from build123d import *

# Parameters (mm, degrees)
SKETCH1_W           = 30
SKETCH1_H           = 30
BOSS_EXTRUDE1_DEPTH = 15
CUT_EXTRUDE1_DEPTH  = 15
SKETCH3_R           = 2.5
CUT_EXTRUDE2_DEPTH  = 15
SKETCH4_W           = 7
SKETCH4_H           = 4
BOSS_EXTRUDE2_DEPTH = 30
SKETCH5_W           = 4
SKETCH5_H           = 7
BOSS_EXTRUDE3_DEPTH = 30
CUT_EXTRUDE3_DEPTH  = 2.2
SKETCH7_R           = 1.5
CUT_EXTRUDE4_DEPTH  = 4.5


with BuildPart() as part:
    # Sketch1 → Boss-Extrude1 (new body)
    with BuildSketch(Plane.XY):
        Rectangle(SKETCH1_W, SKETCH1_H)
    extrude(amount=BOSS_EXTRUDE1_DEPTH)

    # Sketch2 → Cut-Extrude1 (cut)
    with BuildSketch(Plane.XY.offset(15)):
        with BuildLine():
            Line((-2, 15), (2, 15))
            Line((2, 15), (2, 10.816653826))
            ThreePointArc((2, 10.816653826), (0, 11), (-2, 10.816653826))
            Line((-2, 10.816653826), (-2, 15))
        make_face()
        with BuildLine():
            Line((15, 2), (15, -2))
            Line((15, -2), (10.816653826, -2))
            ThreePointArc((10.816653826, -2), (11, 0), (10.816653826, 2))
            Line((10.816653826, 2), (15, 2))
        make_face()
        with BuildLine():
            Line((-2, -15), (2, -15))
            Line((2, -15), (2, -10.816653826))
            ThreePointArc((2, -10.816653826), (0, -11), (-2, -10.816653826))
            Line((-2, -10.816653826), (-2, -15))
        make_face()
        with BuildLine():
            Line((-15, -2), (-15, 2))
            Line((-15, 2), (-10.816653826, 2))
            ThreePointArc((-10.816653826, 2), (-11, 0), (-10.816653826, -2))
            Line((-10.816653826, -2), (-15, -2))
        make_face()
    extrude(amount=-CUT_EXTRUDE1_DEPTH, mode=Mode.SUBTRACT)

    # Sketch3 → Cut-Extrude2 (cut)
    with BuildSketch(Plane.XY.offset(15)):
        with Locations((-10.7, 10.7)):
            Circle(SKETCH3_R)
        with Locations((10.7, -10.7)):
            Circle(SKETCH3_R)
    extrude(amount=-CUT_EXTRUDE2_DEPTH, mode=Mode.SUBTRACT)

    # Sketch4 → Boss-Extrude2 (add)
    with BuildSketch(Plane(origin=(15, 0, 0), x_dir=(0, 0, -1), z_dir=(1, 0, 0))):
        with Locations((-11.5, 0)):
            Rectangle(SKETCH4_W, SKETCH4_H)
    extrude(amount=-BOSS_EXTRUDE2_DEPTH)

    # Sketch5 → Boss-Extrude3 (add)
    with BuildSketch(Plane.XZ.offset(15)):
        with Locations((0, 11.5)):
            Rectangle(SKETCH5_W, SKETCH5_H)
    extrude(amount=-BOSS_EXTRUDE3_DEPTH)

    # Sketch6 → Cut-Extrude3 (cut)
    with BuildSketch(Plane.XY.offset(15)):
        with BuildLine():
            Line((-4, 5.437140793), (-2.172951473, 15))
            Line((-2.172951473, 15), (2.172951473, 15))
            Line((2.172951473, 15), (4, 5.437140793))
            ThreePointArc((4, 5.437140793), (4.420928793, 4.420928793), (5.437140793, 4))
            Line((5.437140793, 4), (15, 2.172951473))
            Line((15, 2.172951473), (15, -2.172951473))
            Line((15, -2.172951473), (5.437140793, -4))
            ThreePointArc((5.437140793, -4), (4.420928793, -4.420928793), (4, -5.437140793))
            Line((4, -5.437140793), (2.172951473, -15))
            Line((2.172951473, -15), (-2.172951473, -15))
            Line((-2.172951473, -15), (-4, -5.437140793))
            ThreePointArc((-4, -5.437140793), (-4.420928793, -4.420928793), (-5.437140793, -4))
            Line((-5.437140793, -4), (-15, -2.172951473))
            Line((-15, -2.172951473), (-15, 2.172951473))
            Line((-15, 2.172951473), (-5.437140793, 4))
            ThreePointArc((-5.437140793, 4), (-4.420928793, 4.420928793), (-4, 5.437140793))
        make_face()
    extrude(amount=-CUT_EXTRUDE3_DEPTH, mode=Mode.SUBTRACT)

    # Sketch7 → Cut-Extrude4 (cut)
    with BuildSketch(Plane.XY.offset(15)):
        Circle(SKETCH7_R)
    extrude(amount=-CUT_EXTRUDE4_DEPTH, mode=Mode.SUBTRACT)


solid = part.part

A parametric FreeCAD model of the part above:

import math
import FreeCAD as App
import Part
import Sketcher
Q = App.Units.Quantity


def add_polygon(sketch, points):
    """Adds a closed chain of lines whose ends are joined by coincident constraints."""
    first, n = sketch.GeometryCount, len(points)
    for a, b in zip(points, points[1:] + points[:1]):
        sketch.addGeometry(Part.LineSegment(App.Vector(*a, 0), App.Vector(*b, 0)), False)
    for i in range(n):
        sketch.addConstraint(Sketcher.Constraint("Coincident", first + i, 2, first + (i + 1) % n, 1))

doc = App.newDocument("Part")
params = doc.addObject("Spreadsheet::Sheet", "Params")
for row, (alias, value) in enumerate([
    ("sketch1_width", "30 mm"),
    ("pad1_length", "15 mm"),
    ("sketch2_radius", "11 mm"),
    ("sketch2_width", "4 mm"),
    ("pocket1_length", "15 mm"),
    ("sketch3_diameter", "5 mm"),
    ("pocket2_length", "15 mm"),
    ("sketch4_width", "4 mm"),
    ("sketch4_height", "7 mm"),
    ("pad2_length", "30 mm"),
    ("sketch5_width", "4 mm"),
    ("sketch5_height", "7 mm"),
    ("pad3_length", "30 mm"),
    ("pocket3_length", "2.2 mm"),
    ("sketch7_diameter", "3 mm"),
    ("pocket4_length", "4.5 mm"),
], start=1):
    params.set(f"A{row}", alias)
    params.set(f"B{row}", "=" + value)
    params.setAlias(f"B{row}", alias)

body = doc.addObject("PartDesign::Body", "Body")

sketch1 = body.newObject("Sketcher::SketchObject", "Sketch")
sketch1.AttachmentSupport = (doc.getObject("XY_Plane"), [""])
sketch1.MapMode = "FlatFace"
add_polygon(sketch1, [(-15, 15), (-15, -15), (15, -15), (15, 15)])
sketch1.addConstraint(Sketcher.Constraint("Vertical", 0))
sketch1.addConstraint(Sketcher.Constraint("Horizontal", 1))
sketch1.addConstraint(Sketcher.Constraint("Vertical", 2))
sketch1.addConstraint(Sketcher.Constraint("Horizontal", 3))
sketch1.addConstraint(Sketcher.Constraint("Symmetric", 0, 2, 2, 2, -1, 1))
sketch1.addConstraint(Sketcher.Constraint("Equal", 3, 0))
sketch1.addConstraint(Sketcher.Constraint("DistanceX", 1, 1, 1, 2, Q("30 mm")))
sketch1.setExpression("Constraints[10]", "Params.sketch1_width")
pad1 = body.newObject("PartDesign::Pad", "Pad")
pad1.Profile = sketch1
pad1.setExpression("Length", "Params.pad1_length")

sketch2 = body.newObject("Sketcher::SketchObject", "Sketch001")
sketch2.AttachmentSupport = (doc.getObject("XY_Plane"), [""])
sketch2.MapMode = "FlatFace"
sketch2.AttachmentOffset = App.Placement(App.Vector(0, 0, 15), App.Rotation())
sketch2.addGeometry(Part.LineSegment(App.Vector(2, 15, 0), App.Vector(-2, 15, 0)), False)
sketch2.addGeometry(Part.LineSegment(App.Vector(-2, 15, 0), App.Vector(-2, 10.8, 0)), False)
sketch2.addGeometry(Part.ArcOfCircle(Part.Circle(App.Vector(0, 0, 0), App.Vector(0, 0, 1), 11), math.radians(80), math.radians(100)), False)
sketch2.addGeometry(Part.LineSegment(App.Vector(2, 10.8, 0), App.Vector(2, 15, 0)), False)
sketch2.addGeometry(Part.LineSegment(App.Vector(15, -2, 0), App.Vector(15, 2, 0)), False)
sketch2.addGeometry(Part.LineSegment(App.Vector(15, 2, 0), App.Vector(10.8, 2, 0)), False)
sketch2.addGeometry(Part.ArcOfCircle(Part.Circle(App.Vector(0, 0, 0), App.Vector(0, 0, 1), 11), math.radians(-10), math.radians(10)), False)
sketch2.addGeometry(Part.LineSegment(App.Vector(10.8, -2, 0), App.Vector(15, -2, 0)), False)
sketch2.addGeometry(Part.LineSegment(App.Vector(-2, -15, 0), App.Vector(2, -15, 0)), False)
sketch2.addGeometry(Part.LineSegment(App.Vector(2, -15, 0), App.Vector(2, -10.8, 0)), False)
sketch2.addGeometry(Part.ArcOfCircle(Part.Circle(App.Vector(0, 0, 0), App.Vector(0, 0, 1), 11), math.radians(-100), math.radians(-80)), False)
sketch2.addGeometry(Part.LineSegment(App.Vector(-2, -10.8, 0), App.Vector(-2, -15, 0)), False)
sketch2.addGeometry(Part.LineSegment(App.Vector(-15, 2, 0), App.Vector(-15, -2, 0)), False)
sketch2.addGeometry(Part.LineSegment(App.Vector(-15, -2, 0), App.Vector(-10.8, -2, 0)), False)
sketch2.addGeometry(Part.ArcOfCircle(Part.Circle(App.Vector(0, 0, 0), App.Vector(0, 0, 1), 11), math.radians(170), math.radians(190)), False)
sketch2.addGeometry(Part.LineSegment(App.Vector(-10.8, 2, 0), App.Vector(-15, 2, 0)), False)
sketch2.addConstraint(Sketcher.Constraint("Coincident", 0, 2, 1, 1))
sketch2.addConstraint(Sketcher.Constraint("Coincident", 1, 2, 2, 2))
sketch2.addConstraint(Sketcher.Constraint("Coincident", 2, 1, 3, 1))
sketch2.addConstraint(Sketcher.Constraint("Coincident", 3, 2, 0, 1))
sketch2.addConstraint(Sketcher.Constraint("Coincident", 4, 2, 5, 1))
sketch2.addConstraint(Sketcher.Constraint("Coincident", 5, 2, 6, 2))
sketch2.addConstraint(Sketcher.Constraint("Coincident", 6, 1, 7, 1))
sketch2.addConstraint(Sketcher.Constraint("Coincident", 7, 2, 4, 1))
sketch2.addConstraint(Sketcher.Constraint("Coincident", 8, 2, 9, 1))
sketch2.addConstraint(Sketcher.Constraint("Coincident", 9, 2, 10, 2))
sketch2.addConstraint(Sketcher.Constraint("Coincident", 10, 1, 11, 1))
sketch2.addConstraint(Sketcher.Constraint("Coincident", 11, 2, 8, 1))
sketch2.addConstraint(Sketcher.Constraint("Coincident", 12, 2, 13, 1))
sketch2.addConstraint(Sketcher.Constraint("Coincident", 13, 2, 14, 2))
sketch2.addConstraint(Sketcher.Constraint("Coincident", 14, 1, 15, 1))
sketch2.addConstraint(Sketcher.Constraint("Coincident", 15, 2, 12, 1))
sketch2.addConstraint(Sketcher.Constraint("Horizontal", 0))
sketch2.addConstraint(Sketcher.Constraint("Vertical", 1))
sketch2.addConstraint(Sketcher.Constraint("Vertical", 3))
sketch2.addConstraint(Sketcher.Constraint("Vertical", 4))
sketch2.addConstraint(Sketcher.Constraint("Horizontal", 5))
sketch2.addConstraint(Sketcher.Constraint("Horizontal", 7))
sketch2.addConstraint(Sketcher.Constraint("Horizontal", 8))
sketch2.addConstraint(Sketcher.Constraint("Vertical", 9))
sketch2.addConstraint(Sketcher.Constraint("Vertical", 11))
sketch2.addConstraint(Sketcher.Constraint("Vertical", 12))
sketch2.addConstraint(Sketcher.Constraint("Horizontal", 13))
sketch2.addConstraint(Sketcher.Constraint("Horizontal", 15))
sketch2.addConstraint(Sketcher.Constraint("Coincident", 2, 3, -1, 1))
sketch2.addConstraint(Sketcher.Constraint("Coincident", 6, 3, -1, 1))
sketch2.addConstraint(Sketcher.Constraint("Coincident", 10, 3, -1, 1))
sketch2.addConstraint(Sketcher.Constraint("Coincident", 14, 3, -1, 1))
sketch2.addConstraint(Sketcher.Constraint("Equal", 2, 6))
sketch2.addConstraint(Sketcher.Constraint("Equal", 6, 10))
sketch2.addConstraint(Sketcher.Constraint("Equal", 10, 14))
sketch2.addConstraint(Sketcher.Constraint("Symmetric", 0, 2, 8, 2, -1, 1))
sketch2.addConstraint(Sketcher.Constraint("Symmetric", 4, 2, 12, 2, -1, 1))
sketch2.addConstraint(Sketcher.Constraint("Horizontal", 1, 2, 2, 1))
sketch2.addConstraint(Sketcher.Constraint("Horizontal", 9, 2, 10, 1))
sketch2.addConstraint(Sketcher.Constraint("Horizontal", 7, 2, 12, 2))
sketch2.addConstraint(Sketcher.Constraint("Horizontal", 5, 2, 14, 1))
sketch2.addConstraint(Sketcher.Constraint("Equal", 15, 1))
sketch2.addConstraint(Sketcher.Constraint("Equal", 8, 4))
sketch2.addConstraint(Sketcher.Constraint("Radius", 2, Q("11 mm")))
sketch2.addConstraint(Sketcher.Constraint("DistanceX", 0, 2, 0, 1, Q("4 mm")))
sketch2.addConstraint(Sketcher.Constraint("DistanceY", -1, 1, 0, 2, Q("15 mm")))
sketch2.setExpression("Constraints[43]", "Params.sketch2_radius")
sketch2.setExpression("Constraints[44]", "Params.sketch2_width")
pocket1 = body.newObject("PartDesign::Pocket", "Pocket")
pocket1.Profile = sketch2
pocket1.setExpression("Length", "Params.pocket1_length")

sketch3 = body.newObject("Sketcher::SketchObject", "Sketch002")
sketch3.AttachmentSupport = (doc.getObject("XY_Plane"), [""])
sketch3.MapMode = "FlatFace"
sketch3.AttachmentOffset = App.Placement(App.Vector(0, 0, 15), App.Rotation())
sketch3.addGeometry(Part.Circle(App.Vector(-10.7, 10.7, 0), App.Vector(0, 0, 1), 2.5), False)
sketch3.addGeometry(Part.Circle(App.Vector(10.7, -10.7, 0), App.Vector(0, 0, 1), 2.5), False)
sketch3.addConstraint(Sketcher.Constraint("Equal", 0, 1))
sketch3.addConstraint(Sketcher.Constraint("Symmetric", 0, 3, 1, 3, -1, 1))
sketch3.addConstraint(Sketcher.Constraint("Diameter", 0, Q("5 mm")))
sketch3.addConstraint(Sketcher.Constraint("DistanceX", 0, 3, -1, 1, Q("10.7 mm")))
sketch3.addConstraint(Sketcher.Constraint("DistanceY", -1, 1, 0, 3, Q("10.7 mm")))
sketch3.setExpression("Constraints[2]", "Params.sketch3_diameter")
pocket2 = body.newObject("PartDesign::Pocket", "Pocket001")
pocket2.Profile = sketch3
pocket2.setExpression("Length", "Params.pocket2_length")

sketch4 = body.newObject("Sketcher::SketchObject", "Sketch003")
sketch4.AttachmentSupport = (doc.getObject("YZ_Plane"), [""])
sketch4.MapMode = "FlatFace"
sketch4.AttachmentOffset = App.Placement(App.Vector(0, 0, 15), App.Rotation())
add_polygon(sketch4, [(2, 15), (-2, 15), (-2, 8), (2, 8)])
sketch4.addConstraint(Sketcher.Constraint("Horizontal", 0))
sketch4.addConstraint(Sketcher.Constraint("Vertical", 1))
sketch4.addConstraint(Sketcher.Constraint("Horizontal", 2))
sketch4.addConstraint(Sketcher.Constraint("Vertical", 3))
sketch4.addConstraint(Sketcher.Constraint("DistanceX", 0, 2, 0, 1, Q("4 mm")))
sketch4.addConstraint(Sketcher.Constraint("DistanceY", 1, 2, 1, 1, Q("7 mm")))
sketch4.addConstraint(Sketcher.Constraint("DistanceX", 0, 2, -1, 1, Q("2 mm")))
sketch4.addConstraint(Sketcher.Constraint("DistanceY", -1, 1, 0, 2, Q("15 mm")))
sketch4.setExpression("Constraints[8]", "Params.sketch4_width")
sketch4.setExpression("Constraints[9]", "Params.sketch4_height")
pad2 = body.newObject("PartDesign::Pad", "Pad001")
pad2.Profile = sketch4
pad2.setExpression("Length", "Params.pad2_length")
pad2.Reversed = True

sketch5 = body.newObject("Sketcher::SketchObject", "Sketch004")
sketch5.AttachmentSupport = (doc.getObject("XZ_Plane"), [""])
sketch5.MapMode = "FlatFace"
sketch5.AttachmentOffset = App.Placement(App.Vector(0, 0, 15), App.Rotation())
add_polygon(sketch5, [(-2, 15), (-2, 8), (2, 8), (2, 15)])
sketch5.addConstraint(Sketcher.Constraint("Vertical", 0))
sketch5.addConstraint(Sketcher.Constraint("Horizontal", 1))
sketch5.addConstraint(Sketcher.Constraint("Vertical", 2))
sketch5.addConstraint(Sketcher.Constraint("Horizontal", 3))
sketch5.addConstraint(Sketcher.Constraint("DistanceX", 1, 1, 1, 2, Q("4 mm")))
sketch5.addConstraint(Sketcher.Constraint("DistanceY", 0, 2, 0, 1, Q("7 mm")))
sketch5.addConstraint(Sketcher.Constraint("DistanceX", 0, 2, -1, 1, Q("2 mm")))
sketch5.addConstraint(Sketcher.Constraint("DistanceY", -1, 1, 0, 2, Q("8 mm")))
sketch5.setExpression("Constraints[8]", "Params.sketch5_width")
sketch5.setExpression("Constraints[9]", "Params.sketch5_height")
pad3 = body.newObject("PartDesign::Pad", "Pad002")
pad3.Profile = sketch5
pad3.setExpression("Length", "Params.pad3_length")
pad3.Reversed = True

sketch6 = body.newObject("Sketcher::SketchObject", "Sketch005")
sketch6.AttachmentSupport = (doc.getObject("XY_Plane"), [""])
sketch6.MapMode = "FlatFace"
sketch6.AttachmentOffset = App.Placement(App.Vector(0, 0, 15), App.Rotation())
sketch6.addGeometry(Part.LineSegment(App.Vector(-2.2, 15, 0), App.Vector(-4, 5.4, 0)), False)
sketch6.addGeometry(Part.ArcOfCircle(Part.Circle(App.Vector(-5.4, 5.4, 0), App.Vector(0, 0, 1), 1.4), math.radians(-90), math.radians(0)), False)
sketch6.addGeometry(Part.LineSegment(App.Vector(-5.4, 4, 0), App.Vector(-15, 2.2, 0)), False)
sketch6.addGeometry(Part.LineSegment(App.Vector(-15, 2.2, 0), App.Vector(-15, -2.2, 0)), False)
sketch6.addGeometry(Part.LineSegment(App.Vector(-15, -2.2, 0), App.Vector(-5.4, -4, 0)), False)
sketch6.addGeometry(Part.ArcOfCircle(Part.Circle(App.Vector(-5.4, -5.4, 0), App.Vector(0, 0, 1), 1.4), math.radians(0), math.radians(90)), False)
sketch6.addGeometry(Part.LineSegment(App.Vector(-4, -5.4, 0), App.Vector(-2.2, -15, 0)), False)
sketch6.addGeometry(Part.LineSegment(App.Vector(-2.2, -15, 0), App.Vector(2.2, -15, 0)), False)
sketch6.addGeometry(Part.LineSegment(App.Vector(2.2, -15, 0), App.Vector(4, -5.4, 0)), False)
sketch6.addGeometry(Part.ArcOfCircle(Part.Circle(App.Vector(5.4, -5.4, 0), App.Vector(0, 0, 1), 1.4), math.radians(90), math.radians(180)), False)
sketch6.addGeometry(Part.LineSegment(App.Vector(5.4, -4, 0), App.Vector(15, -2.2, 0)), False)
sketch6.addGeometry(Part.LineSegment(App.Vector(15, -2.2, 0), App.Vector(15, 2.2, 0)), False)
sketch6.addGeometry(Part.LineSegment(App.Vector(15, 2.2, 0), App.Vector(5.4, 4, 0)), False)
sketch6.addGeometry(Part.ArcOfCircle(Part.Circle(App.Vector(5.4, 5.4, 0), App.Vector(0, 0, 1), 1.4), math.radians(-180), math.radians(-90)), False)
sketch6.addGeometry(Part.LineSegment(App.Vector(4, 5.4, 0), App.Vector(2.2, 15, 0)), False)
sketch6.addGeometry(Part.LineSegment(App.Vector(2.2, 15, 0), App.Vector(-2.2, 15, 0)), False)
sketch6.addConstraint(Sketcher.Constraint("Coincident", 0, 2, 1, 2))
sketch6.addConstraint(Sketcher.Constraint("Coincident", 1, 1, 2, 1))
sketch6.addConstraint(Sketcher.Constraint("Coincident", 2, 2, 3, 1))
sketch6.addConstraint(Sketcher.Constraint("Coincident", 3, 2, 4, 1))
sketch6.addConstraint(Sketcher.Constraint("Coincident", 4, 2, 5, 2))
sketch6.addConstraint(Sketcher.Constraint("Coincident", 5, 1, 6, 1))
sketch6.addConstraint(Sketcher.Constraint("Coincident", 6, 2, 7, 1))
sketch6.addConstraint(Sketcher.Constraint("Coincident", 7, 2, 8, 1))
sketch6.addConstraint(Sketcher.Constraint("Coincident", 8, 2, 9, 2))
sketch6.addConstraint(Sketcher.Constraint("Coincident", 9, 1, 10, 1))
sketch6.addConstraint(Sketcher.Constraint("Coincident", 10, 2, 11, 1))
sketch6.addConstraint(Sketcher.Constraint("Coincident", 11, 2, 12, 1))
sketch6.addConstraint(Sketcher.Constraint("Coincident", 12, 2, 13, 2))
sketch6.addConstraint(Sketcher.Constraint("Coincident", 13, 1, 14, 1))
sketch6.addConstraint(Sketcher.Constraint("Coincident", 14, 2, 15, 1))
sketch6.addConstraint(Sketcher.Constraint("Coincident", 15, 2, 0, 1))
sketch6.addConstraint(Sketcher.Constraint("Vertical", 3))
sketch6.addConstraint(Sketcher.Constraint("Horizontal", 7))
sketch6.addConstraint(Sketcher.Constraint("Vertical", 11))
sketch6.addConstraint(Sketcher.Constraint("Horizontal", 15))
sketch6.addConstraint(Sketcher.Constraint("Equal", 1, 5))
sketch6.addConstraint(Sketcher.Constraint("Equal", 5, 9))
sketch6.addConstraint(Sketcher.Constraint("Equal", 9, 13))
sketch6.addConstraint(Sketcher.Constraint("Symmetric", 1, 3, 9, 3, -1, 1))
sketch6.addConstraint(Sketcher.Constraint("Symmetric", 5, 3, 13, 3, -1, 1))
sketch6.addConstraint(Sketcher.Constraint("Symmetric", 2, 2, 10, 2, -1, 1))
sketch6.addConstraint(Sketcher.Constraint("Symmetric", 6, 2, 14, 2, -1, 1))
sketch6.addConstraint(Sketcher.Constraint("Symmetric", 5, 3, 9, 3, -2))
sketch6.addConstraint(Sketcher.Constraint("Perpendicular", 0, 4))
sketch6.addConstraint(Sketcher.Constraint("Perpendicular", 2, 6))
sketch6.addConstraint(Sketcher.Constraint("Perpendicular", 4, 8))
sketch6.addConstraint(Sketcher.Constraint("Perpendicular", 6, 10))
sketch6.addConstraint(Sketcher.Constraint("Perpendicular", 8, 12))
sketch6.addConstraint(Sketcher.Constraint("Perpendicular", 10, 14))
sketch6.addConstraint(Sketcher.Constraint("Horizontal", 13, 3, 0, 2))
sketch6.addConstraint(Sketcher.Constraint("Horizontal", 9, 3, 5, 1))
sketch6.addConstraint(Sketcher.Constraint("Horizontal", 5, 1, 8, 2))
sketch6.addConstraint(Sketcher.Constraint("Horizontal", 3, 2, 10, 2))
sketch6.addConstraint(Sketcher.Constraint("Horizontal", 2, 2, 11, 2))
sketch6.addConstraint(Sketcher.Constraint("Vertical", 5, 3, 1, 1))
sketch6.addConstraint(Sketcher.Constraint("Vertical", 1, 1, 4, 2))
sketch6.addConstraint(Sketcher.Constraint("Equal", 15, 3))
sketch6.addConstraint(Sketcher.Constraint("Equal", 0, 2))
sketch6.addConstraint(Sketcher.Constraint("DistanceX", 0, 2, -1, 1, Q("4 mm")))
sketch6.addConstraint(Sketcher.Constraint("DistanceX", 2, 2, -1, 1, Q("15 mm")))
sketch6.addConstraint(Sketcher.Constraint("Radius", 1, Q("1.437141 mm")))
sketch6.addConstraint(Sketcher.Constraint("Distance", 0, Q("9.73583 mm")))
pocket3 = body.newObject("PartDesign::Pocket", "Pocket002")
pocket3.Profile = sketch6
pocket3.setExpression("Length", "Params.pocket3_length")

sketch7 = body.newObject("Sketcher::SketchObject", "Sketch006")
sketch7.AttachmentSupport = (doc.getObject("XY_Plane"), [""])
sketch7.MapMode = "FlatFace"
sketch7.AttachmentOffset = App.Placement(App.Vector(0, 0, 15), App.Rotation())
sketch7.addGeometry(Part.Circle(App.Vector(0, 0, 0), App.Vector(0, 0, 1), 1.5), False)
sketch7.addConstraint(Sketcher.Constraint("Coincident", 0, 3, -1, 1))
sketch7.addConstraint(Sketcher.Constraint("Diameter", 0, Q("3 mm")))
sketch7.setExpression("Constraints[1]", "Params.sketch7_diameter")
pocket4 = body.newObject("PartDesign::Pocket", "Pocket003")
pocket4.Profile = sketch7
pocket4.setExpression("Length", "Params.pocket4_length")

doc.recompute()
